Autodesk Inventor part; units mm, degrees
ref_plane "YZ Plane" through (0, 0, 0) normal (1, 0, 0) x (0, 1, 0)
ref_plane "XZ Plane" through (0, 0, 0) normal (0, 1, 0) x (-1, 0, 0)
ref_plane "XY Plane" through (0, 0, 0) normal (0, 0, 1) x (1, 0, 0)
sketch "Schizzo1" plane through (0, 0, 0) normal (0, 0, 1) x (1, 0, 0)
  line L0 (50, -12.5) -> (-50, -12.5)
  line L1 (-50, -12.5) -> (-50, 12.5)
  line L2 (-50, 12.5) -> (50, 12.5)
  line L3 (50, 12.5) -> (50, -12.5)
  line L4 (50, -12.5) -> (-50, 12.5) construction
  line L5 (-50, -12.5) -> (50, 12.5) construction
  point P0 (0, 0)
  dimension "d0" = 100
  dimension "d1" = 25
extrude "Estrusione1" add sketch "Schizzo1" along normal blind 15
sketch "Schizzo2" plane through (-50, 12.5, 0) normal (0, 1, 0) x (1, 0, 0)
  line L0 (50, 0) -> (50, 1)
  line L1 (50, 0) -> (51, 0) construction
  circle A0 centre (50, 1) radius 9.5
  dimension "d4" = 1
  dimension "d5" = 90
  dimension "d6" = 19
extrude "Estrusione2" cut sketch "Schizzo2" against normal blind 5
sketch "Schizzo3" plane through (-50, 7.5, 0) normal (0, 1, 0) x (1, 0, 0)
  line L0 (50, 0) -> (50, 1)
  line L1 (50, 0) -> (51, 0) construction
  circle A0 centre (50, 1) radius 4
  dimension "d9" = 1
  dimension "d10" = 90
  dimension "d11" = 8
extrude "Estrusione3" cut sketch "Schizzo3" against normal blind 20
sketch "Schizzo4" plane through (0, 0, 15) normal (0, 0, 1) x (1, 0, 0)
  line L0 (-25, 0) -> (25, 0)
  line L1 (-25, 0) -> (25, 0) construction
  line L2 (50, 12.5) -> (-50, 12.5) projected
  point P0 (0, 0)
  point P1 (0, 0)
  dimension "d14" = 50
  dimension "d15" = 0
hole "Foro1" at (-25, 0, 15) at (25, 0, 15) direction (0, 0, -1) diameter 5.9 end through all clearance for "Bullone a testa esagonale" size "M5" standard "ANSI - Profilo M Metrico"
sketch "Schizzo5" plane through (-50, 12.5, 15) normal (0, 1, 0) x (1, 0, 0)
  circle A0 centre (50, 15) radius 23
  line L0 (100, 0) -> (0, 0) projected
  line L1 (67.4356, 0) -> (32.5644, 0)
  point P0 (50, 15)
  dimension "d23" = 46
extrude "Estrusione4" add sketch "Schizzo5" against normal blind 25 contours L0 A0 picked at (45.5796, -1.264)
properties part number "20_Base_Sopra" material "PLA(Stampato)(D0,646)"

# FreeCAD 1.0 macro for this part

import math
import FreeCAD as App
import Part
import Sketcher

V = App.Vector
Q = App.Units.Quantity

doc = App.newDocument("Part")
body = doc.addObject("PartDesign::Body", "Body")

sketch1 = body.newObject("Sketcher::SketchObject", "Sketch")
sketch1.AttachmentSupport = (doc.getObject("XY_Plane"), [""])
sketch1.MapMode = "FlatFace"
sketch1.addGeometry([
    Part.LineSegment(V(-50, -12.5, 0), V(50, -12.5, 0)),
    Part.LineSegment(V(50, -12.5, 0), V(50, 12.5, 0)),
    Part.LineSegment(V(50, 12.5, 0), V(-50, 12.5, 0)),
    Part.LineSegment(V(-50, 12.5, 0), V(-50, -12.5, 0)),
], False)
sketch1.addConstraint([
    Sketcher.Constraint("Coincident", 0, 2, 1, 1),
    Sketcher.Constraint("Coincident", 1, 2, 2, 1),
    Sketcher.Constraint("Coincident", 2, 2, 3, 1),
    Sketcher.Constraint("Coincident", 3, 2, 0, 1),
    Sketcher.Constraint("Horizontal", 0),
    Sketcher.Constraint("Vertical", 1),
    Sketcher.Constraint("Horizontal", 2),
    Sketcher.Constraint("Vertical", 3),
    Sketcher.Constraint("Symmetric", 0, 2, 2, 2, -1, 1),
    Sketcher.Constraint("DistanceX", 0, 1, 0, 2, Q("100 mm")),
    Sketcher.Constraint("DistanceY", 1, 1, 1, 2, Q("25 mm")),
])
pad1 = body.newObject("PartDesign::Pad", "Pad")
pad1.Profile = sketch1
pad1.Length = 15

sketch2 = body.newObject("Sketcher::SketchObject", "Sketch001")
sketch2.AttachmentSupport = (doc.getObject("XZ_Plane"), [""])
sketch2.MapMode = "FlatFace"
sketch2.AttachmentOffset = App.Placement(V(0, 0, -12.5), App.Rotation())
sketch2.addGeometry(Part.Circle(V(0, -1, 0), V(0, 0, 1), 9.5), False)
sketch2.addConstraint([
    Sketcher.Constraint("PointOnObject", 0, 3, -2),
    Sketcher.Constraint("Diameter", 0, Q("19 mm")),
    Sketcher.Constraint("DistanceY", 0, 3, -1, 1, Q("1 mm")),
])
pocket1 = body.newObject("PartDesign::Pocket", "Pocket")
pocket1.Profile = sketch2
pocket1.Length = 5
pocket1.Reversed = True

sketch3 = body.newObject("Sketcher::SketchObject", "Sketch002")
sketch3.AttachmentSupport = (doc.getObject("XZ_Plane"), [""])
sketch3.MapMode = "FlatFace"
sketch3.AttachmentOffset = App.Placement(V(0, 0, -7.5), App.Rotation())
sketch3.addGeometry(Part.Circle(V(0, -1, 0), V(0, 0, 1), 4), False)
sketch3.addConstraint([
    Sketcher.Constraint("PointOnObject", 0, 3, -2),
    Sketcher.Constraint("Diameter", 0, Q("8 mm")),
    Sketcher.Constraint("DistanceY", 0, 3, -1, 1, Q("1 mm")),
])
pocket2 = body.newObject("PartDesign::Pocket", "Pocket001")
pocket2.Profile = sketch3
pocket2.Length = 20
pocket2.Reversed = True

sketch4 = body.newObject("Sketcher::SketchObject", "Sketch003")
sketch4.AttachmentSupport = (doc.getObject("XY_Plane"), [""])
sketch4.MapMode = "FlatFace"
sketch4.AttachmentOffset = App.Placement(V(0, 0, 15), App.Rotation())
sketch4.addGeometry([
    Part.Circle(V(-25, 0, 0), V(0, 0, 1), 2.95),
    Part.Circle(V(25, 0, 0), V(0, 0, 1), 2.95),
], False)
sketch4.addConstraint([
    Sketcher.Constraint("Equal", 0, 1),
    Sketcher.Constraint("Symmetric", 0, 3, 1, 3, -1, 1),
    Sketcher.Constraint("PointOnObject", 0, 3, -1),
    Sketcher.Constraint("Diameter", 0, Q("5.9 mm")),
    Sketcher.Constraint("DistanceX", 0, 3, -1, 1, Q("25 mm")),
])
doc.recompute()
hole = body.newObject("PartDesign::Hole", "Hole")
hole.Profile = sketch4
hole.ThreadType = "None"
hole.Diameter = 5.9
hole.DepthType = "ThroughAll"

sketch5 = body.newObject("Sketcher::SketchObject", "Sketch004")
sketch5.AttachmentSupport = (doc.getObject("XZ_Plane"), [""])
sketch5.MapMode = "FlatFace"
sketch5.AttachmentOffset = App.Placement(V(0, 0, -12.5), App.Rotation())
sketch5.addGeometry([
    Part.LineSegment(V(17.4356, 15, 0), V(-17.4356, 15, 0)),
    Part.ArcOfCircle(Part.Circle(V(0, 0, 0), V(0, 0, 1), 23), math.radians(40.7057), math.radians(139.2943)),
], False)
sketch5.addConstraint([
    Sketcher.Constraint("Coincident", 0, 1, 1, 1),
    Sketcher.Constraint("Coincident", 1, 2, 0, 2),
    Sketcher.Constraint("Horizontal", 0),
    Sketcher.Constraint("Coincident", 1, 3, -1, 1),
    Sketcher.Constraint("Radius", 1, Q("23 mm")),
    Sketcher.Constraint("DistanceY", -1, 1, 0, 1, Q("15 mm")),
])
pad2 = body.newObject("PartDesign::Pad", "Pad001")
pad2.Profile = sketch5
pad2.Length = 25

doc.recompute()
